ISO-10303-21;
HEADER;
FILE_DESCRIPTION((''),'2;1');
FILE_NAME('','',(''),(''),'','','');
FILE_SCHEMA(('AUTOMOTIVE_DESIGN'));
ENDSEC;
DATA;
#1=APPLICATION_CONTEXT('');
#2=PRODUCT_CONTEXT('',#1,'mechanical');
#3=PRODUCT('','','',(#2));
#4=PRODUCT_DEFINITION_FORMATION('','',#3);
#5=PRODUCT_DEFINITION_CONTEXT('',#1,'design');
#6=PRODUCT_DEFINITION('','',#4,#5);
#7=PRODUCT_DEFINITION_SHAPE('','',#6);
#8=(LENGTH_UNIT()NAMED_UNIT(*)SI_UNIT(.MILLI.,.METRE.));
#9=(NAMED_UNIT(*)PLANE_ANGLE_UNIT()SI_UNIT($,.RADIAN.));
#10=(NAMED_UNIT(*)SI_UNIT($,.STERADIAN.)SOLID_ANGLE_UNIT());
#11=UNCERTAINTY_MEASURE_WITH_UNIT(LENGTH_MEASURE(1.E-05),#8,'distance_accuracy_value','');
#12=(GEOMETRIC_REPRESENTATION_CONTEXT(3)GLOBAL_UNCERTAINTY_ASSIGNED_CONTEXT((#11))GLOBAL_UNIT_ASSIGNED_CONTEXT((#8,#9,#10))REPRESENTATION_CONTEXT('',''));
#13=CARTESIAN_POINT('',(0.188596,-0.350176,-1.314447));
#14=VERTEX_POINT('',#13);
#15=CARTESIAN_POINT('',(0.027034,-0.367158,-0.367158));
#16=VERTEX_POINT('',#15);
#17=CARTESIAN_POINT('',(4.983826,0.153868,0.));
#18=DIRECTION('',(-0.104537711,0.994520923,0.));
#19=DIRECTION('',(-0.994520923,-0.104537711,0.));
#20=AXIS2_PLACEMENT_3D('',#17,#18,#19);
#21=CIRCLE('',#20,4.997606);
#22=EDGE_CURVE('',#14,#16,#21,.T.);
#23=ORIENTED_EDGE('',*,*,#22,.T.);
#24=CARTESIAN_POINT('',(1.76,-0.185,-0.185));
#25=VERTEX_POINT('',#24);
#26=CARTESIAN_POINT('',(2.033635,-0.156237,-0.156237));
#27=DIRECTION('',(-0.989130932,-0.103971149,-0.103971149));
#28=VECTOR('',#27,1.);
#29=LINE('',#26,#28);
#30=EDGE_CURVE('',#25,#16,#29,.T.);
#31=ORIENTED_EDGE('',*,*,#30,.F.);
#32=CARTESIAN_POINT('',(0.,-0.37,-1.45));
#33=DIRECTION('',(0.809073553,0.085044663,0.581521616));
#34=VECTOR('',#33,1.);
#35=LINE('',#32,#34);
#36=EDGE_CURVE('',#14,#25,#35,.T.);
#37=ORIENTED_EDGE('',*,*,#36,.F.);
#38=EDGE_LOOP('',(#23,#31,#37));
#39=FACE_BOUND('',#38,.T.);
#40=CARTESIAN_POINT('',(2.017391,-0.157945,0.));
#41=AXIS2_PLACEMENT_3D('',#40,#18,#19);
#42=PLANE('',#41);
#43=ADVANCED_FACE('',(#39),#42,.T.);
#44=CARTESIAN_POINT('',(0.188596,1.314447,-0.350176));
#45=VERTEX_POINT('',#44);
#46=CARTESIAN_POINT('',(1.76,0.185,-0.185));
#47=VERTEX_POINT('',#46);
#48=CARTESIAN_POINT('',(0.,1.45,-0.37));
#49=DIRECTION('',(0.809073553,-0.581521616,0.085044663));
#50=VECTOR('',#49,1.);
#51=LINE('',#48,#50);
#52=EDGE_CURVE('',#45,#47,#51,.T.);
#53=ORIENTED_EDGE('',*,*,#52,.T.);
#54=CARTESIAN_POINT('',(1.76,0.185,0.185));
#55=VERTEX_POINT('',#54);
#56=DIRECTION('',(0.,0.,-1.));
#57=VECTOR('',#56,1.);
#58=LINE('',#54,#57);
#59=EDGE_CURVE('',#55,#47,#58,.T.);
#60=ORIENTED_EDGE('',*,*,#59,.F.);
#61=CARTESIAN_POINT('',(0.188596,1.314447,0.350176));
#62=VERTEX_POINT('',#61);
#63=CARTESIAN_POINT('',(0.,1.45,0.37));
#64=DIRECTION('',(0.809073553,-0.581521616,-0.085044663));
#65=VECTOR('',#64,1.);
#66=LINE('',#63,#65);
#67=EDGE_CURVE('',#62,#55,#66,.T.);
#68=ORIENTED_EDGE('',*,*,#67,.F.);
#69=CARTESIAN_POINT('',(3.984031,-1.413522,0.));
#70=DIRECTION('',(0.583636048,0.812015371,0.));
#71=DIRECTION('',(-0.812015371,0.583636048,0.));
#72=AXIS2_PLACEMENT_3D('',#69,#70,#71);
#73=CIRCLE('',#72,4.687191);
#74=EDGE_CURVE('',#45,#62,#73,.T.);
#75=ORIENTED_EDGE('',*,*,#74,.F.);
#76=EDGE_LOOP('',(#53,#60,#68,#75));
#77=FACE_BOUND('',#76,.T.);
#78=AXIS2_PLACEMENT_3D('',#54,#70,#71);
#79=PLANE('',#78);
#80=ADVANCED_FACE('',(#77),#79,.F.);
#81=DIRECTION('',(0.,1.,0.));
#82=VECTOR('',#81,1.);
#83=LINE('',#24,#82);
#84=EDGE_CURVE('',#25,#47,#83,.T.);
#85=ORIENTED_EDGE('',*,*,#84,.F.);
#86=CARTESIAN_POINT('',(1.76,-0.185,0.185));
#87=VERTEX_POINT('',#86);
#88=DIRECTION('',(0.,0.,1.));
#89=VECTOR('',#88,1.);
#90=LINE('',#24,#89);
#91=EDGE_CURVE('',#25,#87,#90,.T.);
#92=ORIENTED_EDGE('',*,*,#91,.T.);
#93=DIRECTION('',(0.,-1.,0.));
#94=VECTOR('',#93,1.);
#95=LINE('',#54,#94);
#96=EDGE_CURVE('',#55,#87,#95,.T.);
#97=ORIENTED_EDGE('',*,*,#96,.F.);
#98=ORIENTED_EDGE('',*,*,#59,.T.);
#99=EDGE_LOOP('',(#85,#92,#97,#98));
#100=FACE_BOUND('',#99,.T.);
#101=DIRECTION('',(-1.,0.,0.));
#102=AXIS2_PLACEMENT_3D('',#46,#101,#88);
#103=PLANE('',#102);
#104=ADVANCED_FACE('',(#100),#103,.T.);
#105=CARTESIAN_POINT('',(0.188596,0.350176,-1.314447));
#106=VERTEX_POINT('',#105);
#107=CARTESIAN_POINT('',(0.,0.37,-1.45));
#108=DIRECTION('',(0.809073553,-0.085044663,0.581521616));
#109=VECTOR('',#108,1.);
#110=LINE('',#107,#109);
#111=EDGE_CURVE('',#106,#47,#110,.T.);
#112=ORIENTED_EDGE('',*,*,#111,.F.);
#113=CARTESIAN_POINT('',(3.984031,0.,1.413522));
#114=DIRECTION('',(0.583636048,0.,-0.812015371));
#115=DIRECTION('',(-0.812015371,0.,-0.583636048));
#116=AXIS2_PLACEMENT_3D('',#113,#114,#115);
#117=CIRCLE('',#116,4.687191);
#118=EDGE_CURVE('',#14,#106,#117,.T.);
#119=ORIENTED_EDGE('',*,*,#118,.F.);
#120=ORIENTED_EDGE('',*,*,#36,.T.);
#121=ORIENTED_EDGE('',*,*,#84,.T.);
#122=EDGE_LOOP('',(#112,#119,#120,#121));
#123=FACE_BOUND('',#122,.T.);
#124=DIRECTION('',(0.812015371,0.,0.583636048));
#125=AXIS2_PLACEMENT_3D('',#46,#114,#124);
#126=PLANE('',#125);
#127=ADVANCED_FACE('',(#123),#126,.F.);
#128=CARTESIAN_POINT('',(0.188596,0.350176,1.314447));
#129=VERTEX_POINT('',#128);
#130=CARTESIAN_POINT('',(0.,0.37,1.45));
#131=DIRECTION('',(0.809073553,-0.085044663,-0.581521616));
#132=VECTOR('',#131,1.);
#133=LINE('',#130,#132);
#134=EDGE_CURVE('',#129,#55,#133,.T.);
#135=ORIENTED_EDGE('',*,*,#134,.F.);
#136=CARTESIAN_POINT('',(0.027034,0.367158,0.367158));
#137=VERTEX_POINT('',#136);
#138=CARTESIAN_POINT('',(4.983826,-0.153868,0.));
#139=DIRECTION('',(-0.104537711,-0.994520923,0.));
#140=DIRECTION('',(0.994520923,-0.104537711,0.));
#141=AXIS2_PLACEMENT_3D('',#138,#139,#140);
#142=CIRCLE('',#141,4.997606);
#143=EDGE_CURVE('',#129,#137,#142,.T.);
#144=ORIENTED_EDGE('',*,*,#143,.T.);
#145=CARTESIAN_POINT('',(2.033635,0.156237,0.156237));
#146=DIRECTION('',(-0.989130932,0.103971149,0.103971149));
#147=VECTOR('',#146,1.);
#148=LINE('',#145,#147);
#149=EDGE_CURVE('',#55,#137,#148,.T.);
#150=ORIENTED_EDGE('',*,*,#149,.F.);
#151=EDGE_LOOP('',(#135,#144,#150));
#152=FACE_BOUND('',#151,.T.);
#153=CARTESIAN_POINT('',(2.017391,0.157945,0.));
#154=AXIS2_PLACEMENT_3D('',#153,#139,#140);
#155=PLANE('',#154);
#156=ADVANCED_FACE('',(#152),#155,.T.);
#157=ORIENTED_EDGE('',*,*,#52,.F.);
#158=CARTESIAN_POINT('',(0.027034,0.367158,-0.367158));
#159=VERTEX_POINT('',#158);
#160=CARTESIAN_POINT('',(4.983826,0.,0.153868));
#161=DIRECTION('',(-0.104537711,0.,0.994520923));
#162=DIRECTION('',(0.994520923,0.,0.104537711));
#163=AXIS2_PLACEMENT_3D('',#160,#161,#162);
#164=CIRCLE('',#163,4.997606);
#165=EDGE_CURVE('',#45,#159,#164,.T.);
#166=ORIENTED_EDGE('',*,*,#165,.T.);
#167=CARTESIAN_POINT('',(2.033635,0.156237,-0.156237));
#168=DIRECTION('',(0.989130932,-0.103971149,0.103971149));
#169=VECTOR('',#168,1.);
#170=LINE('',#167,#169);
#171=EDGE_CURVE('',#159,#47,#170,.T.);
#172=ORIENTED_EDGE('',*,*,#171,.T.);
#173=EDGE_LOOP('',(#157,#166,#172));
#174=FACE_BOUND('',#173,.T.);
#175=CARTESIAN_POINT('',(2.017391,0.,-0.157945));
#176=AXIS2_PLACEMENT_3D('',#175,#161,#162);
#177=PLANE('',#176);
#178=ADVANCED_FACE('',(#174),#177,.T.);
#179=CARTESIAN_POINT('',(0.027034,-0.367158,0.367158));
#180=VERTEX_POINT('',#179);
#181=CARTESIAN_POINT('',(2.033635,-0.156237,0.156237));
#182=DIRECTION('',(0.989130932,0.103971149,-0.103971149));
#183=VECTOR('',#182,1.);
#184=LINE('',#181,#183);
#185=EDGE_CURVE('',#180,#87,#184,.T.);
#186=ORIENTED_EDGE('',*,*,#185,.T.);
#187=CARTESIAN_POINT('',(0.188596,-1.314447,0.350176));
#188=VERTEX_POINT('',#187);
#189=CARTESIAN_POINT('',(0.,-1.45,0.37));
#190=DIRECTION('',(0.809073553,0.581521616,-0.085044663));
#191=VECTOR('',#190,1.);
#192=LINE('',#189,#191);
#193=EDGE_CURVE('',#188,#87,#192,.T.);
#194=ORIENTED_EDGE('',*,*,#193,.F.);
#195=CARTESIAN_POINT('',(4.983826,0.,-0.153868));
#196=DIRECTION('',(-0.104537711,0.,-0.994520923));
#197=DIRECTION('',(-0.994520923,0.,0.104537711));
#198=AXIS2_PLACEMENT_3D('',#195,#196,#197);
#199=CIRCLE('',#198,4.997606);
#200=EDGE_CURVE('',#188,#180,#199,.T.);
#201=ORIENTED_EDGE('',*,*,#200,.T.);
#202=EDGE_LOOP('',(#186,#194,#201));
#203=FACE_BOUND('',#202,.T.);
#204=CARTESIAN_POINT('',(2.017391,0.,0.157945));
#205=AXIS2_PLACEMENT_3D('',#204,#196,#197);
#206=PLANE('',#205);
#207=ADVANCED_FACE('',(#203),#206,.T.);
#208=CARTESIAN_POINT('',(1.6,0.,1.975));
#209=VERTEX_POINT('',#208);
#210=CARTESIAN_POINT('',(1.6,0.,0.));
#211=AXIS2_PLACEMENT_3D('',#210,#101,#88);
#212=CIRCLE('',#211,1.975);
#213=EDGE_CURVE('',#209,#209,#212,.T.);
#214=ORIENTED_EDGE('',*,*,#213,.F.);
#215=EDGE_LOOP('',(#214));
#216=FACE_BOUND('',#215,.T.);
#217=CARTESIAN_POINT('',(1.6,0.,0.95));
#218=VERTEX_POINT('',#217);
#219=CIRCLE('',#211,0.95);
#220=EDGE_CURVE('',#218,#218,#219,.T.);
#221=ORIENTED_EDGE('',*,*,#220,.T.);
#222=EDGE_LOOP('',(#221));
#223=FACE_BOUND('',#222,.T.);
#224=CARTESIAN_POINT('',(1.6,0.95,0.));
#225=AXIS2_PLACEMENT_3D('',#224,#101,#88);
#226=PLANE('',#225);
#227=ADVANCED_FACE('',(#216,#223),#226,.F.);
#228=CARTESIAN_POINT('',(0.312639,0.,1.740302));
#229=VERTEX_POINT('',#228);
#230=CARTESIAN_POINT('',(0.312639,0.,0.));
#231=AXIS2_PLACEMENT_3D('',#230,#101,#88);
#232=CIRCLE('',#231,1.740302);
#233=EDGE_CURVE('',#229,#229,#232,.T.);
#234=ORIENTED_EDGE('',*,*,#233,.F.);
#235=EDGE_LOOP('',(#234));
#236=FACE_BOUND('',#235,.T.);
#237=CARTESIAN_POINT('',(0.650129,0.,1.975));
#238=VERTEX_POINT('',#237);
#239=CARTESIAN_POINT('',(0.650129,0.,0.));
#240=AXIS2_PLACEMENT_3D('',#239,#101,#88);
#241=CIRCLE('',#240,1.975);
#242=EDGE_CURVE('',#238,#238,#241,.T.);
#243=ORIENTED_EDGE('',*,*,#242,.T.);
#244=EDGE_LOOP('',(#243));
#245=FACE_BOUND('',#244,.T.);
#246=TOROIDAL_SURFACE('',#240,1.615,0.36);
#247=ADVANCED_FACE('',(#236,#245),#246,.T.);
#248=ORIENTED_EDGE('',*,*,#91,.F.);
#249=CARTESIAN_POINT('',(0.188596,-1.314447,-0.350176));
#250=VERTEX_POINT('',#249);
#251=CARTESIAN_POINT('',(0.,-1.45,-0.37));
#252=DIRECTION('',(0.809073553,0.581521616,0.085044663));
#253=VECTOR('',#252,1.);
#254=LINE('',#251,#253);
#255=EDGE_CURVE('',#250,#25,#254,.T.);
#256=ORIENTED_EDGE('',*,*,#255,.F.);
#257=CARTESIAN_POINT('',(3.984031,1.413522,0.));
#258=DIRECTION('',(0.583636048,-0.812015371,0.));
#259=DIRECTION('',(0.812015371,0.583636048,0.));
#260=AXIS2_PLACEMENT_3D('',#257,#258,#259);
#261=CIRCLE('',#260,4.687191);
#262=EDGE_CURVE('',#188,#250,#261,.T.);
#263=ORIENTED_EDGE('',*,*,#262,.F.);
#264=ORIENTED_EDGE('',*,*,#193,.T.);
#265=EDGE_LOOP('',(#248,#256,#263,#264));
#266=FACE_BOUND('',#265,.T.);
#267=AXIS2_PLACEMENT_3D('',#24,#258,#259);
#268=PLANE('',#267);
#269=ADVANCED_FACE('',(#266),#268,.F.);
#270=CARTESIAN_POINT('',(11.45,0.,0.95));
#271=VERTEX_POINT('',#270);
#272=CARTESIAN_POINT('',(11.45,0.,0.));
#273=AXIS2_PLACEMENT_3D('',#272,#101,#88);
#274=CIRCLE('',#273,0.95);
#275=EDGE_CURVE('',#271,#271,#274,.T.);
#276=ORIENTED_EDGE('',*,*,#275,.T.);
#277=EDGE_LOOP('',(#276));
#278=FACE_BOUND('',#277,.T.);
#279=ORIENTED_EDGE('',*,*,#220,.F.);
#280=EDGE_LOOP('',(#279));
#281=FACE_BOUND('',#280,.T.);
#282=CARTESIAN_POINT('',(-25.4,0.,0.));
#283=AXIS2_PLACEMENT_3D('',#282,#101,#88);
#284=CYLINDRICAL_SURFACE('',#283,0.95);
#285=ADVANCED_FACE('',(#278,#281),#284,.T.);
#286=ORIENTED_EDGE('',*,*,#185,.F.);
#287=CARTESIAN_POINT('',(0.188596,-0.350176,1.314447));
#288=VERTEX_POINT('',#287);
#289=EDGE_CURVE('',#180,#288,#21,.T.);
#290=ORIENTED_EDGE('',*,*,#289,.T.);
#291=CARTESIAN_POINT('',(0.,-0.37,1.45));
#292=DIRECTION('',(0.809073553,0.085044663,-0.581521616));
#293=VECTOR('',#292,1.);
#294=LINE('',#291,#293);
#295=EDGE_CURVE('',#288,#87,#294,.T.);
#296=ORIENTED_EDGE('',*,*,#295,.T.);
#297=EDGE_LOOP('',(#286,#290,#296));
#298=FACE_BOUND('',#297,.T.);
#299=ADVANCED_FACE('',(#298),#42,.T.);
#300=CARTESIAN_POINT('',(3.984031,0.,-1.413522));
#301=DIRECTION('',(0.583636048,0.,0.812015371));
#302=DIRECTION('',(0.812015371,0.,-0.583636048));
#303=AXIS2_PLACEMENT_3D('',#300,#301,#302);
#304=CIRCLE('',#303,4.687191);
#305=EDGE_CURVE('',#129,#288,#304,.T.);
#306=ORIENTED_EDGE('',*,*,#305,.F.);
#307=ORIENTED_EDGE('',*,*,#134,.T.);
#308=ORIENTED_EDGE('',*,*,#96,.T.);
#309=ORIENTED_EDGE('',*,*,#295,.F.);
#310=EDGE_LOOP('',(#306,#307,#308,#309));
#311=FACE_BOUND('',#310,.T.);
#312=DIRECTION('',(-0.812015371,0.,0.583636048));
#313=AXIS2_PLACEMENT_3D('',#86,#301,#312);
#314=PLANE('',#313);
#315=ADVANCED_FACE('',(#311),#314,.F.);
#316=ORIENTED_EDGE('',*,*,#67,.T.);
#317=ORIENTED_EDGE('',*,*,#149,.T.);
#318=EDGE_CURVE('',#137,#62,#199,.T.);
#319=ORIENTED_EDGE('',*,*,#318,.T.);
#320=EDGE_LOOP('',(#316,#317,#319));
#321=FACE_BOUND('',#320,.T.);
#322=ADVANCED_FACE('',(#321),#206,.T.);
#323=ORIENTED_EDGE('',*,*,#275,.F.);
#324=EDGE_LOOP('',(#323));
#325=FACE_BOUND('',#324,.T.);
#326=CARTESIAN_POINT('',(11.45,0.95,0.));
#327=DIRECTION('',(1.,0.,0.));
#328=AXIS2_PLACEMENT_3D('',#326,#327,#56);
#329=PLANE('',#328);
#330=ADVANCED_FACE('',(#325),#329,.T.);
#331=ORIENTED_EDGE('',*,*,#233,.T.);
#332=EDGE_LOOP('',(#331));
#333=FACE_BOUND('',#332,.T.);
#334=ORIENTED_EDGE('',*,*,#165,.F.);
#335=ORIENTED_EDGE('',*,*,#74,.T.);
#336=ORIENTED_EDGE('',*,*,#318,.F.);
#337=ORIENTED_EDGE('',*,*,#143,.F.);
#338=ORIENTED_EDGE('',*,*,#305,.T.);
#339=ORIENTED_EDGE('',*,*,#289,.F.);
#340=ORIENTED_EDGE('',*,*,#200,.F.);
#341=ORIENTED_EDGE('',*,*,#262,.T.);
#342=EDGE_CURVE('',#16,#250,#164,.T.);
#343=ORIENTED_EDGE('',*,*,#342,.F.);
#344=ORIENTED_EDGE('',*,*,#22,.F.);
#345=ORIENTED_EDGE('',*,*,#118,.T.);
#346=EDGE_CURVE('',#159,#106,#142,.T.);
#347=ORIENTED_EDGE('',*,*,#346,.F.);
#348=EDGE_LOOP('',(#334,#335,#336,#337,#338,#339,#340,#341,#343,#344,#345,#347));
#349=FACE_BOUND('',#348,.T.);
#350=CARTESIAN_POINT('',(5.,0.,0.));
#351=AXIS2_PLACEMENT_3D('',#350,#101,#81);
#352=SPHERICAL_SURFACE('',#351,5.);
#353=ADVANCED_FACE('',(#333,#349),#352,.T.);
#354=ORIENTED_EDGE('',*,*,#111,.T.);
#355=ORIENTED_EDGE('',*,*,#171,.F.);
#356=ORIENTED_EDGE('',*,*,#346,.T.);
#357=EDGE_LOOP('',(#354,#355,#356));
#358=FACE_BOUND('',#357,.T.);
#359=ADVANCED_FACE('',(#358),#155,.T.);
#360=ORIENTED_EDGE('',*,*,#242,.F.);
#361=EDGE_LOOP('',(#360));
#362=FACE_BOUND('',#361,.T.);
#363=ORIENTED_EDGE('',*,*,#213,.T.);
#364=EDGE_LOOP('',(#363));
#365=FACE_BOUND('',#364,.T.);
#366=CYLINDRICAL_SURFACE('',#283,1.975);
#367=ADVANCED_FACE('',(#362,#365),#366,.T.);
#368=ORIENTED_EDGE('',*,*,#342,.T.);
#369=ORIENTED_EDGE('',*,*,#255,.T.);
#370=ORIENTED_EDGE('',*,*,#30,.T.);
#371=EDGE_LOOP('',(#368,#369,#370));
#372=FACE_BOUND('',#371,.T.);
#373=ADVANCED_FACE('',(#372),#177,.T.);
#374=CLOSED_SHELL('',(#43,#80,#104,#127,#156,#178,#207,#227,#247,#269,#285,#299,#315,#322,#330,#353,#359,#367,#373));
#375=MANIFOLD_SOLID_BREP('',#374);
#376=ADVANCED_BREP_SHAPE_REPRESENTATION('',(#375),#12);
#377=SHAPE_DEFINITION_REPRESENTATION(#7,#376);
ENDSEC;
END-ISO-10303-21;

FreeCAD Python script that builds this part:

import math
import FreeCAD as App
import Part
import Sketcher
from FreeCAD import Vector
Q = App.Units.Quantity


def add_polygon(sketch, points):
    """Adds a closed chain of lines whose ends are joined by coincident constraints."""
    first, n = sketch.GeometryCount, len(points)
    for a, b in zip(points, points[1:] + points[:1]):
        sketch.addGeometry(Part.LineSegment(App.Vector(*a, 0), App.Vector(*b, 0)), False)
    for i in range(n):
        sketch.addConstraint(Sketcher.Constraint("Coincident", first + i, 2, first + (i + 1) % n, 1))

doc = App.newDocument("Part")
body = doc.addObject("PartDesign::Body", "Body")

# Sketch on XY plane
sketch1 = doc.addObject("Sketcher::SketchObject", "Sketch")
body.addObject(sketch1)
sketch1.AttachmentSupport = (doc.XY_Plane, [""])
sketch1.MapMode = "FlatFace"
sketch1.addGeometry(Part.LineSegment(Vector(1.6, 0.95, 0), Vector(1.6, 1.98, 0)), False)
sketch1.addGeometry(Part.LineSegment(Vector(1.6, 1.98, 0), Vector(0.65, 1.98, 0)), False)
sketch1.addGeometry(Part.ArcOfCircle(Part.Circle(Vector(0.65, 1.61, 0), Vector(0, 0, 1), 0.36), math.radians(90), math.radians(160)), False)
sketch1.addGeometry(Part.ArcOfCircle(Part.Circle(Vector(5, 0, 0), Vector(0, 0, 1), 5), math.radians(160), math.radians(180)), False)
sketch1.addGeometry(Part.LineSegment(Vector(0, 0, 0), Vector(11.45, 0, 0)), False)
sketch1.addGeometry(Part.LineSegment(Vector(11.45, 0, 0), Vector(11.45, 0.95, 0)), False)
sketch1.addGeometry(Part.LineSegment(Vector(11.45, 0.95, 0), Vector(1.6, 0.95, 0)), False)
sketch1.addConstraint(Sketcher.Constraint("Coincident", 0, 2, 1, 1))
sketch1.addConstraint(Sketcher.Constraint("Tangent", 1, 2, 2, 1))
sketch1.addConstraint(Sketcher.Constraint("Tangent", 2, 2, 3, 1))
sketch1.addConstraint(Sketcher.Constraint("Coincident", 3, 2, 4, 1))
sketch1.addConstraint(Sketcher.Constraint("Coincident", 4, 2, 5, 1))
sketch1.addConstraint(Sketcher.Constraint("Coincident", 5, 2, 6, 1))
sketch1.addConstraint(Sketcher.Constraint("Coincident", 6, 2, 0, 1))
sketch1.addConstraint(Sketcher.Constraint("Vertical", 0))
sketch1.addConstraint(Sketcher.Constraint("Horizontal", 1))
sketch1.addConstraint(Sketcher.Constraint("Horizontal", 4))
sketch1.addConstraint(Sketcher.Constraint("Vertical", 5))
sketch1.addConstraint(Sketcher.Constraint("Horizontal", 6))
sketch1.addConstraint(Sketcher.Constraint("Coincident", 3, 2, -1, 1))
sketch1.addConstraint(Sketcher.Constraint("PointOnObject", 3, 3, -1))
sketch1.addConstraint(Sketcher.Constraint("Radius", 3, Q("5 mm")))
sketch1.addConstraint(Sketcher.Constraint("Radius", 2, Q("0.36 mm")))
sketch1.addConstraint(Sketcher.Constraint("DistanceX", 4, 1, 4, 2, Q("11.45 mm")))
sketch1.addConstraint(Sketcher.Constraint("DistanceX", 6, 2, 6, 1, Q("9.85 mm")))
sketch1.addConstraint(Sketcher.Constraint("DistanceY", 5, 1, 5, 2, Q("0.95 mm")))
sketch1.addConstraint(Sketcher.Constraint("DistanceY", 0, 1, 0, 2, Q("1.025 mm")))
revolution = doc.addObject("PartDesign::Revolution", "Revolution")
body.addObject(revolution)
revolution.Profile = sketch1
revolution.ReferenceAxis = (sketch1, ["H_Axis"])
revolution.Angle = 360

# Sketch on YZ plane
sketch2 = doc.addObject("Sketcher::SketchObject", "Sketch001")
body.addObject(sketch2)
sketch2.AttachmentSupport = (doc.YZ_Plane, [""])
sketch2.MapMode = "FlatFace"
add_polygon(sketch2, [(1.4, 0.4), (-1.4, 0.4), (-1.4, -0.4), (1.4, -0.4)])  # lines 0-3
sketch2.addConstraint(Sketcher.Constraint("Horizontal", 0))
sketch2.addConstraint(Sketcher.Constraint("Vertical", 1))
sketch2.addConstraint(Sketcher.Constraint("Horizontal", 2))
sketch2.addConstraint(Sketcher.Constraint("Vertical", 3))
sketch2.addConstraint(Sketcher.Constraint("Symmetric", 0, 2, 2, 2, -1, 1))
sketch2.addConstraint(Sketcher.Constraint("DistanceX", 0, 2, 0, 1, Q("2.9 mm")))
sketch2.addConstraint(Sketcher.Constraint("DistanceY", 1, 2, 1, 1, Q("0.74 mm")))

# Sketch on YZ plane
sketch3 = doc.addObject("Sketcher::SketchObject", "Sketch002")
body.addObject(sketch3)
sketch3.AttachmentSupport = (doc.YZ_Plane, [""])
sketch3.MapMode = "FlatFace"
sketch3.AttachmentOffset = App.Placement(Vector(0, 0, 1.76), App.Rotation())
add_polygon(sketch3, [(0.18, 0.18), (-0.18, 0.18), (-0.18, -0.18), (0.18, -0.18)])  # lines 0-3
sketch3.addConstraint(Sketcher.Constraint("Horizontal", 0))
sketch3.addConstraint(Sketcher.Constraint("Vertical", 1))
sketch3.addConstraint(Sketcher.Constraint("Horizontal", 2))
sketch3.addConstraint(Sketcher.Constraint("Vertical", 3))
sketch3.addConstraint(Sketcher.Constraint("Symmetric", 0, 2, 2, 2, -1, 1))
sketch3.addConstraint(Sketcher.Constraint("Equal", 2, 1))
sketch3.addConstraint(Sketcher.Constraint("DistanceX", 0, 2, 0, 1, Q("0.37 mm")))

subtractiveloft = doc.addObject("PartDesign::SubtractiveLoft", "SubtractiveLoft")
body.addObject(subtractiveloft)
subtractiveloft.Profile = sketch2
subtractiveloft.Sections = [sketch3]
doc.recompute()

polarpattern = doc.addObject("PartDesign::PolarPattern", "PolarPattern")
body.addObject(polarpattern)
polarpattern.Originals = [subtractiveloft]
polarpattern.Axis = (doc.X_Axis, [""])
polarpattern.Angle = 90
polarpattern.Occurrences = 2
body.Tip = polarpattern

doc.recompute()
